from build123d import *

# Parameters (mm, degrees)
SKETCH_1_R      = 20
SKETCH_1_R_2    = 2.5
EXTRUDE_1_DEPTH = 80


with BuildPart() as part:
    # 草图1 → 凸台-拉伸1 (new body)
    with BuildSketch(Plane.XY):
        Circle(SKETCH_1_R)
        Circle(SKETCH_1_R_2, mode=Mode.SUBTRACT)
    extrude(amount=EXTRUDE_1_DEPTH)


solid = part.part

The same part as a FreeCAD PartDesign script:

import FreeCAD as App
import Part
import Sketcher
Q = App.Units.Quantity

doc = App.newDocument("Part")
body = doc.addObject("PartDesign::Body", "Body")

# Sketch on XY plane
sketch1 = body.newObject("Sketcher::SketchObject", "Sketch")
sketch1.AttachmentSupport = (doc.getObject("XY_Plane"), [""])
sketch1.MapMode = "FlatFace"
sketch1.addGeometry(Part.Circle(App.Vector(0, 0, 0), App.Vector(0, 0, 1), 20), False)
sketch1.addGeometry(Part.Circle(App.Vector(0, 0, 0), App.Vector(0, 0, 1), 2.5), False)
sketch1.addConstraint(Sketcher.Constraint("Coincident", 0, 3, -1, 1))
sketch1.addConstraint(Sketcher.Constraint("Coincident", 1, 3, -1, 1))
sketch1.addConstraint(Sketcher.Constraint("Diameter", 0, Q("40 mm")))
sketch1.addConstraint(Sketcher.Constraint("Diameter", 1, Q("5 mm")))
pad1 = body.newObject("PartDesign::Pad", "Pad")
pad1.Profile = sketch1
pad1.Length = 80

doc.recompute()
